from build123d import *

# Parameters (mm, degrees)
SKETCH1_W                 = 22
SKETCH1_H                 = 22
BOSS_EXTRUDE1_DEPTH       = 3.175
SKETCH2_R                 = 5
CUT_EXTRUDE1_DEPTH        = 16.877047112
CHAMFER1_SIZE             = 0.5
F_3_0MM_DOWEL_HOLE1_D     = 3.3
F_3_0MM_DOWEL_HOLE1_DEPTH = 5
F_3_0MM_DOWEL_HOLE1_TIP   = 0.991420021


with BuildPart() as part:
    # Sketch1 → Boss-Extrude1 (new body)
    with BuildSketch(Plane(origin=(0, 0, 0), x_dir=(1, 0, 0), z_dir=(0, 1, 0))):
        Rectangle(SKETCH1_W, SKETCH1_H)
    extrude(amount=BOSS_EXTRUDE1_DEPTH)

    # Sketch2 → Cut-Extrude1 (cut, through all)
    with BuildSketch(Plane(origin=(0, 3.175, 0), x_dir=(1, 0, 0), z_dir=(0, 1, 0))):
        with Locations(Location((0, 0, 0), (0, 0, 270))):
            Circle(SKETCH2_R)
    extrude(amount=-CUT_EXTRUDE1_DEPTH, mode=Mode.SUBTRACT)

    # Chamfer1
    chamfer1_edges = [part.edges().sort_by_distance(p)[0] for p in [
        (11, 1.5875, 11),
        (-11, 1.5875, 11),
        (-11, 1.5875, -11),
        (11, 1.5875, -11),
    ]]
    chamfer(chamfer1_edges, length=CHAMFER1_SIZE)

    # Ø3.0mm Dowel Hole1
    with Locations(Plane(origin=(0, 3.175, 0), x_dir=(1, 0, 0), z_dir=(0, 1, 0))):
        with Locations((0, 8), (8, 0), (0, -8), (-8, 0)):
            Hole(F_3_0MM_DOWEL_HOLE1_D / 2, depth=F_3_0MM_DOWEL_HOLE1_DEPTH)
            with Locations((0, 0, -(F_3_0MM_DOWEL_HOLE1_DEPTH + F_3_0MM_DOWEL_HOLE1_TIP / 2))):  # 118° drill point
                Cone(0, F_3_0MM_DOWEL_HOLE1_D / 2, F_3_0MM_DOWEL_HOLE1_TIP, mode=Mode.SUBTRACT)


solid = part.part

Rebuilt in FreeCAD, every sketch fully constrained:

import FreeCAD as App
import Part
import Sketcher
Q = App.Units.Quantity


def edges_at(feature, points):
    """Names of the edges that pass closest to the given points."""
    edges = feature.Shape.Edges
    near = lambda p: min(range(len(edges)), key=lambda i: edges[i].distToShape(Part.Vertex(*p))[0])
    return sorted({f"Edge{near(p) + 1}" for p in points})

doc = App.newDocument("Part")
params = doc.addObject("Spreadsheet::Sheet", "Params")
for row, (alias, value) in enumerate([
    ("sketch1_width", "22 mm"),
    ("pad1_length", "3.175 mm"),
    ("sketch2_diameter", "10 mm"),
    ("chamfer_size", "0.5 mm"),
    ("sketch3_diameter", "3.3 mm"),
    ("hole_diameter", "3.3 mm"),
    ("hole_depth", "5 mm"),
], start=1):
    params.set(f"A{row}", alias)
    params.set(f"B{row}", "=" + value)
    params.setAlias(f"B{row}", alias)

body = doc.addObject("PartDesign::Body", "Body")

# Sketch on XZ plane
sketch1 = body.newObject("Sketcher::SketchObject", "Sketch")
sketch1.AttachmentSupport = (doc.getObject("XZ_Plane"), [""])
sketch1.MapMode = "FlatFace"
sketch1.addGeometry([
    Part.LineSegment(App.Vector(-11, -11, 0), App.Vector(-11, 11, 0)),
    Part.LineSegment(App.Vector(-11, 11, 0), App.Vector(11, 11, 0)),
    Part.LineSegment(App.Vector(11, 11, 0), App.Vector(11, -11, 0)),
    Part.LineSegment(App.Vector(11, -11, 0), App.Vector(-11, -11, 0)),
], False)
sketch1.addConstraint([
    Sketcher.Constraint("Coincident", 0, 2, 1, 1),
    Sketcher.Constraint("Coincident", 1, 2, 2, 1),
    Sketcher.Constraint("Coincident", 2, 2, 3, 1),
    Sketcher.Constraint("Coincident", 3, 2, 0, 1),
    Sketcher.Constraint("Vertical", 0),
    Sketcher.Constraint("Horizontal", 1),
    Sketcher.Constraint("Vertical", 2),
    Sketcher.Constraint("Horizontal", 3),
    Sketcher.Constraint("Symmetric", 0, 2, 2, 2, -1, 1),
    Sketcher.Constraint("Equal", 3, 0),
    Sketcher.Constraint("DistanceX", 1, 1, 1, 2, Q("22 mm")),
])
sketch1.setExpression("Constraints[10]", "Params.sketch1_width")
pad1 = body.newObject("PartDesign::Pad", "Pad")
pad1.Profile = sketch1
pad1.setExpression("Length", "Params.pad1_length")
pad1.Reversed = True

# Sketch on XZ plane
sketch2 = body.newObject("Sketcher::SketchObject", "Sketch001")
sketch2.AttachmentSupport = (doc.getObject("XZ_Plane"), [""])
sketch2.MapMode = "FlatFace"
sketch2.AttachmentOffset = App.Placement(App.Vector(0, 0, -3.175), App.Rotation())
sketch2.addGeometry(Part.Circle(App.Vector(0, 0, 0), App.Vector(0, 0, 1), 5), False)
sketch2.addConstraint([
    Sketcher.Constraint("Coincident", 0, 3, -1, 1),
    Sketcher.Constraint("Diameter", 0, Q("10 mm")),
])
sketch2.setExpression("Constraints[1]", "Params.sketch2_diameter")
pocket1 = body.newObject("PartDesign::Pocket", "Pocket")
pocket1.Profile = sketch2
pocket1.Type = "ThroughAll"
pocket1.Reversed = True
doc.recompute()

chamfer = body.newObject("PartDesign::Chamfer", "Chamfer")
chamfer.Base = (pocket1, edges_at(pocket1, [
    (11, 1.587, 11),
    (-11, 1.587, 11),
    (-11, 1.587, -11),
    (11, 1.587, -11),
]))
chamfer.setExpression("Size", "Params.chamfer_size")

# Sketch on XZ plane
sketch3 = body.newObject("Sketcher::SketchObject", "Sketch002")
sketch3.AttachmentSupport = (doc.getObject("XZ_Plane"), [""])
sketch3.MapMode = "FlatFace"
sketch3.AttachmentOffset = App.Placement(App.Vector(0, 0, -3.175), App.Rotation())
sketch3.addGeometry([
    Part.Circle(App.Vector(0, -8, 0), App.Vector(0, 0, 1), 1.6),
    Part.Circle(App.Vector(8, 0, 0), App.Vector(0, 0, 1), 1.6),
    Part.Circle(App.Vector(0, 8, 0), App.Vector(0, 0, 1), 1.6),
    Part.Circle(App.Vector(-8, 0, 0), App.Vector(0, 0, 1), 1.6),
], False)
sketch3.addConstraint([
    Sketcher.Constraint("Equal", 0, 1),
    Sketcher.Constraint("Equal", 1, 2),
    Sketcher.Constraint("Equal", 2, 3),
    Sketcher.Constraint("Symmetric", 0, 3, 2, 3, -1, 1),
    Sketcher.Constraint("Symmetric", 1, 3, 3, 3, -1, 1),
    Sketcher.Constraint("PointOnObject", 0, 3, -2),
    Sketcher.Constraint("PointOnObject", 1, 3, -1),
    Sketcher.Constraint("Diameter", 0, Q("3.3 mm")),
    Sketcher.Constraint("DistanceY", 0, 3, -1, 1, Q("8 mm")),
    Sketcher.Constraint("DistanceX", -1, 1, 1, 3, Q("8 mm")),
])
sketch3.setExpression("Constraints[7]", "Params.sketch3_diameter")
doc.recompute()
hole = body.newObject("PartDesign::Hole", "Hole")
hole.Profile = sketch3
hole.ThreadType = "None"
hole.setExpression("Diameter", "Params.hole_diameter")
hole.DepthType = "Dimension"
hole.setExpression("Depth", "Params.hole_depth")
hole.DrillPoint = "Angled"
hole.DrillPointAngle = 118
hole.Reversed = True

doc.recompute()
